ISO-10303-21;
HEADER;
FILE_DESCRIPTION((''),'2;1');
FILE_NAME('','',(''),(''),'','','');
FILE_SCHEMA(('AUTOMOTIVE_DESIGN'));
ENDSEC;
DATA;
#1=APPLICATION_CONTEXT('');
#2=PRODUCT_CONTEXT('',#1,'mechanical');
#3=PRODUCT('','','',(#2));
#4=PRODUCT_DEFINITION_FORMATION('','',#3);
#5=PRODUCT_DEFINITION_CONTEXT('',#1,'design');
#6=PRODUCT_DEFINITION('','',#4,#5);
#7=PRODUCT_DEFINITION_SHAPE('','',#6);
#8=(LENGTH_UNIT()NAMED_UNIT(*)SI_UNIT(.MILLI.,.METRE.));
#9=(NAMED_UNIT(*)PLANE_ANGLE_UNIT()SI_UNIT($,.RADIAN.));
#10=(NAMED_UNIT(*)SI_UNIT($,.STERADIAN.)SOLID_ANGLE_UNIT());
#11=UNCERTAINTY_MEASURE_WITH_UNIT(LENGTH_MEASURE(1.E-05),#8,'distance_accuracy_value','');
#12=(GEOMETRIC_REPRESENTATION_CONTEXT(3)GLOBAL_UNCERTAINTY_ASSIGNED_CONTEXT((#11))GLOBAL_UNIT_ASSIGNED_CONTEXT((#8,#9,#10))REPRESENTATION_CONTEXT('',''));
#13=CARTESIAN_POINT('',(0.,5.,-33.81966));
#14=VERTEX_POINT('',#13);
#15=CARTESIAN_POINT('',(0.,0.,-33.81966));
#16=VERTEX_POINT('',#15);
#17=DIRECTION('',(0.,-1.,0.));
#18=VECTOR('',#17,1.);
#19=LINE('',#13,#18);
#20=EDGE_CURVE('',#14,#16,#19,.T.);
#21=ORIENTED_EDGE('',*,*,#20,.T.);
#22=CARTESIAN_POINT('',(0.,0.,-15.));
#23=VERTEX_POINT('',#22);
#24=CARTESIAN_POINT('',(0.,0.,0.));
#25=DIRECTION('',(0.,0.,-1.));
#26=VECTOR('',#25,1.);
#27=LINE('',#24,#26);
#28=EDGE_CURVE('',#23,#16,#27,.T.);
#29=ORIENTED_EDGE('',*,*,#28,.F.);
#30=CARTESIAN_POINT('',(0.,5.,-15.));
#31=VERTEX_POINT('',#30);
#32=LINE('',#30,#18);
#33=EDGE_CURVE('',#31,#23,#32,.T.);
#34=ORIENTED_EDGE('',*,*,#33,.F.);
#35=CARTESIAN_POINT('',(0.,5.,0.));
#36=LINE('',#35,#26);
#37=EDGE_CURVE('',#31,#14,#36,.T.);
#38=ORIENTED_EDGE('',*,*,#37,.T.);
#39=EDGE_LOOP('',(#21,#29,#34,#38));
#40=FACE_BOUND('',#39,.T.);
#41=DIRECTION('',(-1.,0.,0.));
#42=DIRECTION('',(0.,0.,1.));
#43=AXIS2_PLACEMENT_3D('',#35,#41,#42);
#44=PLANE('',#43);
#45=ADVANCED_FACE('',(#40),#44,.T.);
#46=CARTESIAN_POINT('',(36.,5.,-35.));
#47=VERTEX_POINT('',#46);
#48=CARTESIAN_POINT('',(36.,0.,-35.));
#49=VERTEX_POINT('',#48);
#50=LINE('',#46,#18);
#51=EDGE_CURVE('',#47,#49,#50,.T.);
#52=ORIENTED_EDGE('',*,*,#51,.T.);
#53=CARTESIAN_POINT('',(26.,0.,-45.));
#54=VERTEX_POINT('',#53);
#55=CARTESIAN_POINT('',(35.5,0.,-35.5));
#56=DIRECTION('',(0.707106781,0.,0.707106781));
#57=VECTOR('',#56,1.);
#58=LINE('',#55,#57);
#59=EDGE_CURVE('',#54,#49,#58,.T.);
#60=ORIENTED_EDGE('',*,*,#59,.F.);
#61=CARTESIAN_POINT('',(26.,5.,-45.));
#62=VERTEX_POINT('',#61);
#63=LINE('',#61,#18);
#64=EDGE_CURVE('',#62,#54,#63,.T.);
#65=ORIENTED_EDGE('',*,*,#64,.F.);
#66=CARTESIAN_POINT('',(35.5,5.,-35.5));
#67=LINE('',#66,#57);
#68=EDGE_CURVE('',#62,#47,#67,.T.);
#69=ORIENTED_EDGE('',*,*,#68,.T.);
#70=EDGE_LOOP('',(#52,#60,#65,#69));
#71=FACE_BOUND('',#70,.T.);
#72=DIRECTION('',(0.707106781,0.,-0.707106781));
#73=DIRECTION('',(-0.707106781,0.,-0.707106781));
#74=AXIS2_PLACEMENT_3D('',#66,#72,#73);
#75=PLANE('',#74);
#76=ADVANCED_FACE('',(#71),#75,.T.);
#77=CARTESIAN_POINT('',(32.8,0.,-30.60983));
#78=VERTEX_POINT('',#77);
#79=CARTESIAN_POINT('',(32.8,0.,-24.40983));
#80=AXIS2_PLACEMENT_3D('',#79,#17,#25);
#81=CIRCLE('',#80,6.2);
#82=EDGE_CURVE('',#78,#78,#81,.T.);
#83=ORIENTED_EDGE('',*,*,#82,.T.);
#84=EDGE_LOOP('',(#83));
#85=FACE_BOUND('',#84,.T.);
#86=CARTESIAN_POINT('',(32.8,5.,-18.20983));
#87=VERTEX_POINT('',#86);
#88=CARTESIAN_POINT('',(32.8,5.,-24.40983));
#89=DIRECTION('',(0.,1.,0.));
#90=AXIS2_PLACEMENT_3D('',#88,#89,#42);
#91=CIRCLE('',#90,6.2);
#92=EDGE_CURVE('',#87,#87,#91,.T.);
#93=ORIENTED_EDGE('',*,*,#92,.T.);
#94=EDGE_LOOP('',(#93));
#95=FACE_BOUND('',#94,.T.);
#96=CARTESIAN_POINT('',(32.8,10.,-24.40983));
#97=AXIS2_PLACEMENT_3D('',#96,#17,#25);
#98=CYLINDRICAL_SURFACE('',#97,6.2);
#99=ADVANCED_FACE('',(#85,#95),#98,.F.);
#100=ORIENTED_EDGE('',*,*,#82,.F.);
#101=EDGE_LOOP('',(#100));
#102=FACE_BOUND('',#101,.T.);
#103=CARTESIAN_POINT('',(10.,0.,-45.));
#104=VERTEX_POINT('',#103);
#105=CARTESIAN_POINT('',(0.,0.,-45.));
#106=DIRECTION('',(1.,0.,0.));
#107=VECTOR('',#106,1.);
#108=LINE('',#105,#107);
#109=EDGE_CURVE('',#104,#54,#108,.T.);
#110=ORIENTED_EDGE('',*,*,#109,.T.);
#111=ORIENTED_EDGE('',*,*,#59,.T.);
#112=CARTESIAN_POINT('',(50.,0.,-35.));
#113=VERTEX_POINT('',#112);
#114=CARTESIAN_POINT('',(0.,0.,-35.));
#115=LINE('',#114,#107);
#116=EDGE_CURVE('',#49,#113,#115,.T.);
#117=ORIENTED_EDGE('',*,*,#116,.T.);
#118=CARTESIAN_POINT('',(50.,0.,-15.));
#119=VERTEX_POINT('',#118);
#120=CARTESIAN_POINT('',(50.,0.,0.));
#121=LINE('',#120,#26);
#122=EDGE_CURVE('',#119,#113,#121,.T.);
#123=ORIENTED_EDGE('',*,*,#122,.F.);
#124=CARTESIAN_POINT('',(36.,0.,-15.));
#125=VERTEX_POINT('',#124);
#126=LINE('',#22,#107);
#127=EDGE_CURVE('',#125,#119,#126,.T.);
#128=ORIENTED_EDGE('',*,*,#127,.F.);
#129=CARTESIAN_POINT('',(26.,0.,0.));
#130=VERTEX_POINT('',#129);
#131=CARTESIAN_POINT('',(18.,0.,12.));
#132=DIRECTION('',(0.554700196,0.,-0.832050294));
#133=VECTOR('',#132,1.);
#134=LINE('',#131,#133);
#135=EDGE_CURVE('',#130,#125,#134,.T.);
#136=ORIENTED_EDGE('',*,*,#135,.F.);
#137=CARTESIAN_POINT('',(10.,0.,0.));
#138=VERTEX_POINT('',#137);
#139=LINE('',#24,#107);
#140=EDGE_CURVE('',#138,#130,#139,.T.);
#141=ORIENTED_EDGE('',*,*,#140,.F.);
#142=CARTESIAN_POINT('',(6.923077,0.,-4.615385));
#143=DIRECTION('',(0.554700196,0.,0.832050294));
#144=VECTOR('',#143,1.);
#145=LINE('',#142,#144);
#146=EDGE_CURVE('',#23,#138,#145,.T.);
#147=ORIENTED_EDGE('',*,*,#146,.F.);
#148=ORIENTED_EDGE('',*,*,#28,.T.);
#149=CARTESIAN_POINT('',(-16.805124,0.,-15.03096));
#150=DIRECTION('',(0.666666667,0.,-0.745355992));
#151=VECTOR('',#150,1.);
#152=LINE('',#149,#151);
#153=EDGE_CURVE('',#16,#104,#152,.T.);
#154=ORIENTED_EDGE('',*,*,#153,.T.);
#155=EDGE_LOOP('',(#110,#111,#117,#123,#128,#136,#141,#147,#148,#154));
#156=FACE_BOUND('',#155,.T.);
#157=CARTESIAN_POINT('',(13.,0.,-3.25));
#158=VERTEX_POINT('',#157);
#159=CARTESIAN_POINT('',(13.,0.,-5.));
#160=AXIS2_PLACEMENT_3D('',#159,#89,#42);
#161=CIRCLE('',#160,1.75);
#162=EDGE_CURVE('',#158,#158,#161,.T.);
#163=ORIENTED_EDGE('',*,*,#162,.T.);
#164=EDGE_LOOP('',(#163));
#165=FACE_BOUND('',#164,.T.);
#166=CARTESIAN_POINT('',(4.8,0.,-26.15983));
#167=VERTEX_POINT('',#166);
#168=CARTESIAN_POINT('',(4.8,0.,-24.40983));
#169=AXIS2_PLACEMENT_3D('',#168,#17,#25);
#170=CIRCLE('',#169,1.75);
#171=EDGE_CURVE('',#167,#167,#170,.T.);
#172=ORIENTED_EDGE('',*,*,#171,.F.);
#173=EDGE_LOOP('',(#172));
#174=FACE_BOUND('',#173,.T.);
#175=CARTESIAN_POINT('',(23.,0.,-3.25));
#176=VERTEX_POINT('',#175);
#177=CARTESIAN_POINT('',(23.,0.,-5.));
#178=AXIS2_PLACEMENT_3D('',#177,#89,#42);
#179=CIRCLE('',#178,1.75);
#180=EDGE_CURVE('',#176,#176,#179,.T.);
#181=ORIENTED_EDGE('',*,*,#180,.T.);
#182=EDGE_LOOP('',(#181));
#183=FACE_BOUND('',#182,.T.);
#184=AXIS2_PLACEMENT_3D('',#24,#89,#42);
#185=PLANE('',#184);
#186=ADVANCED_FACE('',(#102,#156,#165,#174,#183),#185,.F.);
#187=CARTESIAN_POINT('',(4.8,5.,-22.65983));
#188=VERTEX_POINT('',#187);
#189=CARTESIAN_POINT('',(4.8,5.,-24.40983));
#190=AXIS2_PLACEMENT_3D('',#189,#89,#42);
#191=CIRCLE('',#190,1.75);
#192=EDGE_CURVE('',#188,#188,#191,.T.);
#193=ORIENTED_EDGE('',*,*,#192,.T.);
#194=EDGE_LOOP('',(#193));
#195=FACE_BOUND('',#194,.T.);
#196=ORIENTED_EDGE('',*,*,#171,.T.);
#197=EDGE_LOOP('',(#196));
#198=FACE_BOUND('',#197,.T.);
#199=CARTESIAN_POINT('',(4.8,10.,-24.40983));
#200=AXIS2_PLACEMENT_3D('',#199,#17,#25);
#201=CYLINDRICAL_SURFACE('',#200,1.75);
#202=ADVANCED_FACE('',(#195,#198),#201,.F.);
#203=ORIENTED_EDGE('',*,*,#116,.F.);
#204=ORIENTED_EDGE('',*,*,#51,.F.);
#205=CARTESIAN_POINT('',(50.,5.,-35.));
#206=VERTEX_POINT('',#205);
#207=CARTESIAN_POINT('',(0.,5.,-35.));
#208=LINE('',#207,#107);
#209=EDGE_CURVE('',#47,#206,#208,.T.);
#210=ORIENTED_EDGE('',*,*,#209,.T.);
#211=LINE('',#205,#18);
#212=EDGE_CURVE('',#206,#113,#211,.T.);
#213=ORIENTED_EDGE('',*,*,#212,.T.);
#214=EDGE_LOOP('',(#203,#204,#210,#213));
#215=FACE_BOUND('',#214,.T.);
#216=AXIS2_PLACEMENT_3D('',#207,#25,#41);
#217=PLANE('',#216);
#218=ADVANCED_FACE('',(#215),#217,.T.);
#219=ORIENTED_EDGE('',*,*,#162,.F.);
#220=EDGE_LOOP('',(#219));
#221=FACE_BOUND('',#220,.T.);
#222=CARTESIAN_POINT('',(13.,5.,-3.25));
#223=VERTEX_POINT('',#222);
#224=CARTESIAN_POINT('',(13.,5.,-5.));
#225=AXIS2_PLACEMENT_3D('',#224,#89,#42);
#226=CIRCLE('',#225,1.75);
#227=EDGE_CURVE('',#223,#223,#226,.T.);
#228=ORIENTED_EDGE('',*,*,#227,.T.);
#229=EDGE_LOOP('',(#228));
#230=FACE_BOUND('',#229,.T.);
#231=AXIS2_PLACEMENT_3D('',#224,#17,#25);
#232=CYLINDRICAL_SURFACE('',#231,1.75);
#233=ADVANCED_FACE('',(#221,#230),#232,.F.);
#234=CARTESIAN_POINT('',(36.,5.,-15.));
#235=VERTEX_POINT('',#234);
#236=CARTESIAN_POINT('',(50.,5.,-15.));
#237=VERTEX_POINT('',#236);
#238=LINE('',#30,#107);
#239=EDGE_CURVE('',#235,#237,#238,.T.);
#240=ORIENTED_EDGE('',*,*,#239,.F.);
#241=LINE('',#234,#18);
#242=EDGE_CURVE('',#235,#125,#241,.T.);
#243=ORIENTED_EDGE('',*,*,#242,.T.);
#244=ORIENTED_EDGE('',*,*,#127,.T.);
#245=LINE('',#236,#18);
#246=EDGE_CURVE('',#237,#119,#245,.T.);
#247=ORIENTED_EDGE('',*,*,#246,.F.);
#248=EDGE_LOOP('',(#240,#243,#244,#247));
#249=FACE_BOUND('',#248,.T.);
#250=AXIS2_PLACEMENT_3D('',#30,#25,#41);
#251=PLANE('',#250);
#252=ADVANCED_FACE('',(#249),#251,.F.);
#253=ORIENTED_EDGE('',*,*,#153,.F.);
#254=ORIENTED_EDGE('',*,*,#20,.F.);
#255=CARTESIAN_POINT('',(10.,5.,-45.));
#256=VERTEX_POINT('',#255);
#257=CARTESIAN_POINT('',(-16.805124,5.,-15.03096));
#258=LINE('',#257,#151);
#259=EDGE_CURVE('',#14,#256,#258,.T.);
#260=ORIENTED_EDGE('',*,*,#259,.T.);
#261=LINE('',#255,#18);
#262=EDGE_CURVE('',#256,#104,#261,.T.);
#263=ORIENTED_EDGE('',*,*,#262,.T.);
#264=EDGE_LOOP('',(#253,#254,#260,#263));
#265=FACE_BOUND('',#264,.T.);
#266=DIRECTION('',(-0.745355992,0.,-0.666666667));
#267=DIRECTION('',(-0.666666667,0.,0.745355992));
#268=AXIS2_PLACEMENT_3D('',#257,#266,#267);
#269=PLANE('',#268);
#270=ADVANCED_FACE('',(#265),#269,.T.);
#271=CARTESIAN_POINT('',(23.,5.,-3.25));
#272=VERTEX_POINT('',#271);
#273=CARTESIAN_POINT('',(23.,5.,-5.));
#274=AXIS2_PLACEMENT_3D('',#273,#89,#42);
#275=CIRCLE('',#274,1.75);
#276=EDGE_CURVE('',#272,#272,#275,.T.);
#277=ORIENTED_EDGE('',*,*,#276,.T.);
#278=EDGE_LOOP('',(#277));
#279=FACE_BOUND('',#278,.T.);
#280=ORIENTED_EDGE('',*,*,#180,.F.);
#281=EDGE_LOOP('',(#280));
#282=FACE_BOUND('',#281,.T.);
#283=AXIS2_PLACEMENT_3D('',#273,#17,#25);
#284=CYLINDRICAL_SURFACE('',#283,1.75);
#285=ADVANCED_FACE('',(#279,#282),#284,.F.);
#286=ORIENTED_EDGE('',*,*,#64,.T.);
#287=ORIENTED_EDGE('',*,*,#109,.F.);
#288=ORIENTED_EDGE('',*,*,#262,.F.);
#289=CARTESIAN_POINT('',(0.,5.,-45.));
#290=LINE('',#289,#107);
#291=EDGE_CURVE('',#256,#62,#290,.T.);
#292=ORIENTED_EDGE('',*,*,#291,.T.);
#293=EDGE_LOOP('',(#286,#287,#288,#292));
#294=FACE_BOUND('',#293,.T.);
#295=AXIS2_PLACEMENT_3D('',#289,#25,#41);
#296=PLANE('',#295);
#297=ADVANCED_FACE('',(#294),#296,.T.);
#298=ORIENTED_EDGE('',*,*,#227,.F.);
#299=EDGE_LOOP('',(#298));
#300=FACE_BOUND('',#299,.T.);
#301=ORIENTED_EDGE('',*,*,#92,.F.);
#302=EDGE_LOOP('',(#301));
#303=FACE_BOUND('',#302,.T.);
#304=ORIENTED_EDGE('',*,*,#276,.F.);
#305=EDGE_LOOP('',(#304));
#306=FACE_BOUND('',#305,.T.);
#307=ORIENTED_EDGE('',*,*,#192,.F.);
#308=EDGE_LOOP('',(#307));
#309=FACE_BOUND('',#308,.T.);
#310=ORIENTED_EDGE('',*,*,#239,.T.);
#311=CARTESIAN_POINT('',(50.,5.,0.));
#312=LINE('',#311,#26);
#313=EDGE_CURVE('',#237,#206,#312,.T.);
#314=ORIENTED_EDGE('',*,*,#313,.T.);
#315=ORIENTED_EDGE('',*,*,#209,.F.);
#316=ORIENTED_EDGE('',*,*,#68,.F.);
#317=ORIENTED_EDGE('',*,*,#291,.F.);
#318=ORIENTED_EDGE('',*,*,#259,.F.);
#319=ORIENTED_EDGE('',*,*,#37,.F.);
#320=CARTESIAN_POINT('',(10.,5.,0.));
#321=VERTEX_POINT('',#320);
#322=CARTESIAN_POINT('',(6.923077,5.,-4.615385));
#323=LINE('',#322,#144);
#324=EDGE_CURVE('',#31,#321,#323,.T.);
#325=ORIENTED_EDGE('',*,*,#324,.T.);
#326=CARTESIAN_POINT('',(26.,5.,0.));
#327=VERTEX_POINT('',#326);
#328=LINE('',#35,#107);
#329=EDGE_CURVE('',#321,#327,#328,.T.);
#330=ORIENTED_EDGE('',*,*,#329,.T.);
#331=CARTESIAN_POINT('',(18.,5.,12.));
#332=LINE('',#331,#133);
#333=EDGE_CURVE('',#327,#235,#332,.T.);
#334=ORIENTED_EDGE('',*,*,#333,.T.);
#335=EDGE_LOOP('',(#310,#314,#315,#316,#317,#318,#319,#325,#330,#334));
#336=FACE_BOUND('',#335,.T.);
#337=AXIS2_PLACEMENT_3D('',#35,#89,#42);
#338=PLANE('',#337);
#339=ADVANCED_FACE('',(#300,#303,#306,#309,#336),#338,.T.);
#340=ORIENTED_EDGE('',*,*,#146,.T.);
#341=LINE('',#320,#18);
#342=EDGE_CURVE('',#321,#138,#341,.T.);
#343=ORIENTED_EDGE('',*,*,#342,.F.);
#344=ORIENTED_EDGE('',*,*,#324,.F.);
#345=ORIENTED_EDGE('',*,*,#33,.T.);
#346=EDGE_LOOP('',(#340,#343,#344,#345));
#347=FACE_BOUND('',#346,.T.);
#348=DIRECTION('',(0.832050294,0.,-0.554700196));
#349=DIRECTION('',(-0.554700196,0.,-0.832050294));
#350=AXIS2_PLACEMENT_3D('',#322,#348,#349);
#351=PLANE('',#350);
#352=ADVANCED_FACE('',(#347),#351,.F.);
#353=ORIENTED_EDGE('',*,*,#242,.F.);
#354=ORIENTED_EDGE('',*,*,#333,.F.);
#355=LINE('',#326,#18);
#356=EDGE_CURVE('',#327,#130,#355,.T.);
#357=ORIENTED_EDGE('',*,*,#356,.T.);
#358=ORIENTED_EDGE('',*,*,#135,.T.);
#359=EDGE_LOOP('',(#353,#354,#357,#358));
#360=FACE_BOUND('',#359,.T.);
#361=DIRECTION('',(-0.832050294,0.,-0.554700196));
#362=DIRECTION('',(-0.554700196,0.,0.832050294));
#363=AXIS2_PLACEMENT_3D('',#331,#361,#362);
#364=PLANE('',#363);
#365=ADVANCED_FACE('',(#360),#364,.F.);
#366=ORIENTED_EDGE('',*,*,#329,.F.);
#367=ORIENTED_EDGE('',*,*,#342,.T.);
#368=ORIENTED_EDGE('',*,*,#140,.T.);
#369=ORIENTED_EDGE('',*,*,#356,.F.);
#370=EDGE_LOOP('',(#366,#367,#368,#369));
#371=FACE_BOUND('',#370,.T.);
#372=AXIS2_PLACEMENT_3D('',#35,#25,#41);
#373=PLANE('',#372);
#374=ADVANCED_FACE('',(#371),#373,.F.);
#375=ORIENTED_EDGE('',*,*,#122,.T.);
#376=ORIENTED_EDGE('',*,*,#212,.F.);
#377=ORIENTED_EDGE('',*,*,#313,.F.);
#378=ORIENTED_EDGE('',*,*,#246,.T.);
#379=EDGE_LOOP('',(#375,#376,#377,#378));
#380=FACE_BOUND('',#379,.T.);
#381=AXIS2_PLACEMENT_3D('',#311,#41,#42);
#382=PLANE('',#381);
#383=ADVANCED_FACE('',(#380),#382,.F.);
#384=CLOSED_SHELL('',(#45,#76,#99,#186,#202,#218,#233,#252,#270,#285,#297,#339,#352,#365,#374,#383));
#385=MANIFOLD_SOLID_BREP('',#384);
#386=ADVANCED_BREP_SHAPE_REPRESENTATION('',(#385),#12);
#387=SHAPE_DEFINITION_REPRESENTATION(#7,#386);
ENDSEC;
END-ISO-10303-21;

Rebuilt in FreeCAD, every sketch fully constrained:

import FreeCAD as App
import Part
import Sketcher
from FreeCAD import Vector
Q = App.Units.Quantity

doc = App.newDocument("Part")
params = doc.addObject("Spreadsheet::Sheet", "Params")
for row, (alias, value) in enumerate([
    ("sketch1_diameter", "3.5 mm"),
    ("sketch1_width", "14 mm"),
    ("sketch1_width2", "16 mm"),
    ("sketch1_height", "20 mm"),
    ("sketch1_length", "15 mm"),
    ("pad1_length", "5 mm"),
    ("sketch2_diameter", "3.5 mm"),
    ("sketch2_diameter2", "12.4 mm"),
    ("pocket1_length", "10 mm"),
], start=1):
    params.set(f"A{row}", alias)
    params.set(f"B{row}", "=" + value)
    params.setAlias(f"B{row}", alias)

body = doc.addObject("PartDesign::Body", "Body")

# Sketch on XZ plane
sketch1 = body.newObject("Sketcher::SketchObject", "Sketch")
sketch1.AttachmentSupport = (doc.getObject("XZ_Plane"), [""])
sketch1.MapMode = "FlatFace"
sketch1.addGeometry(Part.LineSegment(Vector(50, -15, 0), Vector(50, -35, 0)), False)
sketch1.addGeometry(Part.LineSegment(Vector(50, -35, 0), Vector(36, -35, 0)), False)
sketch1.addGeometry(Part.LineSegment(Vector(36, -35, 0), Vector(26, -45, 0)), False)
sketch1.addGeometry(Part.LineSegment(Vector(26, -45, 0), Vector(10, -45, 0)), False)
sketch1.addGeometry(Part.LineSegment(Vector(10, -45, 0), Vector(0, -33.8, 0)), False)
sketch1.addGeometry(Part.LineSegment(Vector(0, -33.8, 0), Vector(0, -15, 0)), False)
sketch1.addGeometry(Part.LineSegment(Vector(0, -15, 0), Vector(10, 0, 0)), False)
sketch1.addGeometry(Part.LineSegment(Vector(10, 0, 0), Vector(26, 0, 0)), False)
sketch1.addGeometry(Part.LineSegment(Vector(26, 0, 0), Vector(36, -15, 0)), False)
sketch1.addGeometry(Part.LineSegment(Vector(36, -15, 0), Vector(50, -15, 0)), False)
sketch1.addGeometry(Part.Circle(Vector(13, -5, 0), Vector(0, 0, 1), 1.8), False)
sketch1.addGeometry(Part.Circle(Vector(23, -5, 0), Vector(0, 0, 1), 1.8), False)
sketch1.addConstraint(Sketcher.Constraint("Coincident", 0, 2, 1, 1))
sketch1.addConstraint(Sketcher.Constraint("Coincident", 1, 2, 2, 1))
sketch1.addConstraint(Sketcher.Constraint("Coincident", 2, 2, 3, 1))
sketch1.addConstraint(Sketcher.Constraint("Coincident", 3, 2, 4, 1))
sketch1.addConstraint(Sketcher.Constraint("Coincident", 4, 2, 5, 1))
sketch1.addConstraint(Sketcher.Constraint("Coincident", 5, 2, 6, 1))
sketch1.addConstraint(Sketcher.Constraint("Coincident", 6, 2, 7, 1))
sketch1.addConstraint(Sketcher.Constraint("Coincident", 7, 2, 8, 1))
sketch1.addConstraint(Sketcher.Constraint("Coincident", 8, 2, 9, 1))
sketch1.addConstraint(Sketcher.Constraint("Coincident", 9, 2, 0, 1))
sketch1.addConstraint(Sketcher.Constraint("Vertical", 0))
sketch1.addConstraint(Sketcher.Constraint("Horizontal", 1))
sketch1.addConstraint(Sketcher.Constraint("Horizontal", 3))
sketch1.addConstraint(Sketcher.Constraint("Vertical", 5))
sketch1.addConstraint(Sketcher.Constraint("Horizontal", 7))
sketch1.addConstraint(Sketcher.Constraint("Horizontal", 9))
sketch1.addConstraint(Sketcher.Constraint("Equal", 10, 11))
sketch1.addConstraint(Sketcher.Constraint("PointOnObject", 4, 2, -2))
sketch1.addConstraint(Sketcher.Constraint("PointOnObject", 6, 2, -1))
sketch1.addConstraint(Sketcher.Constraint("Horizontal", 10, 3, 11, 3))
sketch1.addConstraint(Sketcher.Constraint("Horizontal", 5, 2, 8, 2))
sketch1.addConstraint(Sketcher.Constraint("Vertical", 3, 2, 6, 2))
sketch1.addConstraint(Sketcher.Constraint("Vertical", 2, 2, 7, 2))
sketch1.addConstraint(Sketcher.Constraint("Vertical", 1, 2, 8, 2))
sketch1.addConstraint(Sketcher.Constraint("Equal", 6, 8))
sketch1.addConstraint(Sketcher.Constraint("Diameter", 10, 3.5))
sketch1.addConstraint(Sketcher.Constraint("DistanceX", 1, 2, 1, 1, 14.0))
sketch1.addConstraint(Sketcher.Constraint("DistanceX", 3, 2, 3, 1, 16.0))
sketch1.addConstraint(Sketcher.Constraint("DistanceY", 0, 2, 0, 1, 20.0))
sketch1.addConstraint(Sketcher.Constraint("Angle", 2, Q("-135 deg")))
sketch1.addConstraint(Sketcher.Constraint("Distance", 4, 15.0))
sketch1.addConstraint(Sketcher.Constraint("DistanceX", -1, 1, 10, 3, 13.0))
sketch1.addConstraint(Sketcher.Constraint("DistanceY", 10, 3, -1, 1, 5.0))
sketch1.addConstraint(Sketcher.Constraint("DistanceX", -1, 1, 11, 3, 23.0))
sketch1.addConstraint(Sketcher.Constraint("DistanceX", -1, 1, 0, 2, 50.0))
sketch1.addConstraint(Sketcher.Constraint("DistanceY", 0, 2, -1, 1, 35.0))
sketch1.setExpression("Constraints[25]", "Params.sketch1_diameter")
sketch1.setExpression("Constraints[26]", "Params.sketch1_width")
sketch1.setExpression("Constraints[27]", "Params.sketch1_width2")
sketch1.setExpression("Constraints[28]", "Params.sketch1_height")
sketch1.setExpression("Constraints[30]", "Params.sketch1_length")
pad1 = body.newObject("PartDesign::Pad", "Pad")
pad1.Profile = sketch1
pad1.setExpression("Length", "Params.pad1_length")
pad1.Reversed = True

# Sketch on XZ plane
sketch2 = body.newObject("Sketcher::SketchObject", "Sketch001")
sketch2.AttachmentSupport = (doc.getObject("XZ_Plane"), [""])
sketch2.MapMode = "FlatFace"
sketch2.addGeometry(Part.Circle(Vector(4.8, -24.4, 0), Vector(0, 0, 1), 1.8), False)
sketch2.addGeometry(Part.Circle(Vector(32.8, -24.4, 0), Vector(0, 0, 1), 6.2), False)
sketch2.addConstraint(Sketcher.Constraint("Horizontal", 0, 3, 1, 3))
sketch2.addConstraint(Sketcher.Constraint("Diameter", 0, 3.5))
sketch2.addConstraint(Sketcher.Constraint("Diameter", 1, 12.4))
sketch2.addConstraint(Sketcher.Constraint("DistanceX", 0, 3, 1, 3, 28.0))
sketch2.addConstraint(Sketcher.Constraint("DistanceX", -1, 1, 0, 3, 4.8))
sketch2.addConstraint(Sketcher.Constraint("DistanceY", 0, 3, -1, 1, 24.40983))
sketch2.setExpression("Constraints[1]", "Params.sketch2_diameter")
sketch2.setExpression("Constraints[2]", "Params.sketch2_diameter2")
pocket1 = body.newObject("PartDesign::Pocket", "Pocket")
pocket1.Profile = sketch2
pocket1.setExpression("Length", "Params.pocket1_length")

doc.recompute()
